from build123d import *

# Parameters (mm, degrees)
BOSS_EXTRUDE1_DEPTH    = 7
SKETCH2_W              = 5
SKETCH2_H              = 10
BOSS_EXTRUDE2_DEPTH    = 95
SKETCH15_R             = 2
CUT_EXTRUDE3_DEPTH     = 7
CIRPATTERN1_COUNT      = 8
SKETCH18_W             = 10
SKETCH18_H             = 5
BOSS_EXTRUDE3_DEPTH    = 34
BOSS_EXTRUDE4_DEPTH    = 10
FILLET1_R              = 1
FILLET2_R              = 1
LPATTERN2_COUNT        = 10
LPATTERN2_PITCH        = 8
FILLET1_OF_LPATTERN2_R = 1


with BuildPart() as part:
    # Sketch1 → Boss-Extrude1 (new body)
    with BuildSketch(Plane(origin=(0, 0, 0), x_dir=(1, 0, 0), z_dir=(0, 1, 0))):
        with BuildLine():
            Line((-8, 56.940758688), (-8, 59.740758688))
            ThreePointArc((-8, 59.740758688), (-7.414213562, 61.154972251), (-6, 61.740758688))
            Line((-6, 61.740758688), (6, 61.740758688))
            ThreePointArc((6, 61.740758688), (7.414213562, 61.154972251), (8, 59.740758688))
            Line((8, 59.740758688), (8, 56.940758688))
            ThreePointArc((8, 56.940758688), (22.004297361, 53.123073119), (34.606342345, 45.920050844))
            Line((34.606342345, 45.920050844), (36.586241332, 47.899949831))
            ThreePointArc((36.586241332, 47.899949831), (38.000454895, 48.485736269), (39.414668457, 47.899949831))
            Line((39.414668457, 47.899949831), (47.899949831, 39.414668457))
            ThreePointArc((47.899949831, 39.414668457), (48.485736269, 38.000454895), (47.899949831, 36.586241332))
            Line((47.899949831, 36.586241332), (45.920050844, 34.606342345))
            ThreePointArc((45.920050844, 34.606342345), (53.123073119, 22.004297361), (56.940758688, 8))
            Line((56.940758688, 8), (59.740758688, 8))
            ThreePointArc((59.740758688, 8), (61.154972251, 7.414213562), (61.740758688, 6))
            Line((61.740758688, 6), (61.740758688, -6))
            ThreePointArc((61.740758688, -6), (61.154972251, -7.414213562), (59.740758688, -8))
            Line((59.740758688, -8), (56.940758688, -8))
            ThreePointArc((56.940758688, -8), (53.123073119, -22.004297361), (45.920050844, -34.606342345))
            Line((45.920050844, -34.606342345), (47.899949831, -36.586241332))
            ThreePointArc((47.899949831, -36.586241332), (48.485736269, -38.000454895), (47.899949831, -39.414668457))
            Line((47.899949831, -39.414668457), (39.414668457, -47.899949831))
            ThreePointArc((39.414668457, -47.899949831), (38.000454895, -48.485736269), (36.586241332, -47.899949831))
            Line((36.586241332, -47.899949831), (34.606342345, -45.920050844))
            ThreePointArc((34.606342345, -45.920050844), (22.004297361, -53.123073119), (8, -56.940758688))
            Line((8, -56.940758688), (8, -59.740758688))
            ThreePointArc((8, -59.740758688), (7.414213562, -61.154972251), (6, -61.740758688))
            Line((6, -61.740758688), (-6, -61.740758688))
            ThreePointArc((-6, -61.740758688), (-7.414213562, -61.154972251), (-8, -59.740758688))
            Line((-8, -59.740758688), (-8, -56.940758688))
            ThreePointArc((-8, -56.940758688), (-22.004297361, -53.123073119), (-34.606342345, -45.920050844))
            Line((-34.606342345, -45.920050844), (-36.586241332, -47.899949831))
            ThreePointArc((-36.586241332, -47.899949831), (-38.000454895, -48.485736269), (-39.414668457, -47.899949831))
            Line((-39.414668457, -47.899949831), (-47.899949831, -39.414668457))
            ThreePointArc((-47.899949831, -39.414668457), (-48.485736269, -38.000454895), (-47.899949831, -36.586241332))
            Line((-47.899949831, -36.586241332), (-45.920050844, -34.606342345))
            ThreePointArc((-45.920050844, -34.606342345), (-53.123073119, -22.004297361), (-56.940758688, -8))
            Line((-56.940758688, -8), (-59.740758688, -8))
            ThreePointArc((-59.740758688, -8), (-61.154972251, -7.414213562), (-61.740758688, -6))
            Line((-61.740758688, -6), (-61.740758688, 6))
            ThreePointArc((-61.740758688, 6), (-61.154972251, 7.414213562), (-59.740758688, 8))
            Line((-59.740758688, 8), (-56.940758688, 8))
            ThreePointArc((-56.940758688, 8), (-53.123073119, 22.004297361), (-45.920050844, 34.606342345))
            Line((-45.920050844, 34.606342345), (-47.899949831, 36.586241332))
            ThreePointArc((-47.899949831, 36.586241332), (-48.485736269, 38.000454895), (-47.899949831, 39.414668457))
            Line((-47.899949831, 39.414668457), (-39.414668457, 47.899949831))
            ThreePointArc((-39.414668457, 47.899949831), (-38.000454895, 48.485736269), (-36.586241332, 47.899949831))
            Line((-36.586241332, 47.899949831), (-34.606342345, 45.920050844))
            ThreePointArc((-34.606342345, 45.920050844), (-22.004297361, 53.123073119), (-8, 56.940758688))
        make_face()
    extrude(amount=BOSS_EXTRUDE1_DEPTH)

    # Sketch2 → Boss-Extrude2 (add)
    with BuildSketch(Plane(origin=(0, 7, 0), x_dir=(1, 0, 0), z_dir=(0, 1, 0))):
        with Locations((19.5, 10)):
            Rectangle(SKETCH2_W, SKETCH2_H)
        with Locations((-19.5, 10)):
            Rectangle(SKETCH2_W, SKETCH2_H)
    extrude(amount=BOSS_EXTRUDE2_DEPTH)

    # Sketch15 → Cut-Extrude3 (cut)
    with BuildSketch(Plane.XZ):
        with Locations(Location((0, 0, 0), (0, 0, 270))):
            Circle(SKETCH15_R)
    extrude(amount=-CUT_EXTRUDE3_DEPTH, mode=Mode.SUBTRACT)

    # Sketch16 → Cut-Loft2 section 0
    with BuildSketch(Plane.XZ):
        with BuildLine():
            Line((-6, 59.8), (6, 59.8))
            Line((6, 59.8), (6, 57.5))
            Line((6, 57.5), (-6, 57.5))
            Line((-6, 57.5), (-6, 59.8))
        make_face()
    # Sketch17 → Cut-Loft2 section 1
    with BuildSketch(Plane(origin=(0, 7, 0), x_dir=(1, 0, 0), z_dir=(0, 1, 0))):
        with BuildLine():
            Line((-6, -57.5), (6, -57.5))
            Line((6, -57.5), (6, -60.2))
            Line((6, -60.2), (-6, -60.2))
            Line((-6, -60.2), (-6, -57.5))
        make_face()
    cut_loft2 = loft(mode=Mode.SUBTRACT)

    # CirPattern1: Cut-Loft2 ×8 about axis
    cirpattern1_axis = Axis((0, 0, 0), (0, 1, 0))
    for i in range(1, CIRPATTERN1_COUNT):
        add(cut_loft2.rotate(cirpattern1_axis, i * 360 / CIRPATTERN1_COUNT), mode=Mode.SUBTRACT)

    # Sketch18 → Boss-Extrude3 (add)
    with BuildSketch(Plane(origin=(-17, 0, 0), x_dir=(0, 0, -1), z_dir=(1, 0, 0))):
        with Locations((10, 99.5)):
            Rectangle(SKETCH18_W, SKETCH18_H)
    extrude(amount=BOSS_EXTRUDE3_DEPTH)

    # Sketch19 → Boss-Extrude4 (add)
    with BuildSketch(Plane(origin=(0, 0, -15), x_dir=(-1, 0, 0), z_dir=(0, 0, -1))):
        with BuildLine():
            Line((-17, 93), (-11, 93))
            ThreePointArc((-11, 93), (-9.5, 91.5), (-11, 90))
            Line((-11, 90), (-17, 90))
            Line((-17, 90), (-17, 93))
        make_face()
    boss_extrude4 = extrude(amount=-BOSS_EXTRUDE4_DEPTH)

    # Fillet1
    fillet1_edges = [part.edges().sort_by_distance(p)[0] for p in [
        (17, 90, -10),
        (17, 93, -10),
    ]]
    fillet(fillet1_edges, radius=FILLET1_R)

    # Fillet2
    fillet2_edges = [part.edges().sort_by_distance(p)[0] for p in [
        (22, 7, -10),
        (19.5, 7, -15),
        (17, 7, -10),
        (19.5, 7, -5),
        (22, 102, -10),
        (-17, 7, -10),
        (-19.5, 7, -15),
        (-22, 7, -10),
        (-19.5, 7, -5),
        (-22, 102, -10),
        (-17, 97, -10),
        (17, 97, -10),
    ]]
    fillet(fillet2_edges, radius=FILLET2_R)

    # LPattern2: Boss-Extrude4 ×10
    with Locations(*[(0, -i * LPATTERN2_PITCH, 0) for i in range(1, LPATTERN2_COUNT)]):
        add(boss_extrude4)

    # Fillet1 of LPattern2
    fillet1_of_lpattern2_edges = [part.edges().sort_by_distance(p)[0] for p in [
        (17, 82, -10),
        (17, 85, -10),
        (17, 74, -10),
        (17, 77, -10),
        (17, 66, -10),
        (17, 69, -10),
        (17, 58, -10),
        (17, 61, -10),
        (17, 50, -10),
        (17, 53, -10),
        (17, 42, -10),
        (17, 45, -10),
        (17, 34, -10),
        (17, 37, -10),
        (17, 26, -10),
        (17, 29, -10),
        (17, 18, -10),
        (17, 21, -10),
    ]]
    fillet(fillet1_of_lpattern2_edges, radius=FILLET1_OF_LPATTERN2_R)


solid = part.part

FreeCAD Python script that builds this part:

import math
import FreeCAD as App
import Part
import Sketcher

V = App.Vector
Q = App.Units.Quantity


def edges_at(feature, points):
    """Names of the edges that pass closest to the given points."""
    edges = feature.Shape.Edges
    near = lambda p: min(range(len(edges)), key=lambda i: edges[i].distToShape(Part.Vertex(*p))[0])
    return sorted({f"Edge{near(p) + 1}" for p in points})

doc = App.newDocument("Part")
body = doc.addObject("PartDesign::Body", "Body")

# Sketch on XZ plane
sketch1 = body.newObject("Sketcher::SketchObject", "Sketch")
sketch1.AttachmentSupport = (doc.getObject("XZ_Plane"), [""])
sketch1.MapMode = "FlatFace"
sketch1.addGeometry([
    Part.LineSegment(V(-8, -59.7, 0), V(-8, -56.9, 0)),  # 0
    Part.ArcOfCircle(Part.Circle(V(0, 0, 0), V(0, 0, 1), 57.5), math.radians(-127), math.radians(-98)),  # 1
    Part.LineSegment(V(-34.6, -45.9, 0), V(-36.6, -47.9, 0)),  # 2
    Part.ArcOfCircle(Part.Circle(V(-38, -46.5, 0), V(0, 0, 1), 2), math.radians(-135), math.radians(-45)),  # 3
    Part.LineSegment(V(-39.4, -47.9, 0), V(-47.9, -39.4, 0)),  # 4
    Part.ArcOfCircle(Part.Circle(V(-46.5, -38, 0), V(0, 0, 1), 2), math.radians(135), math.radians(225)),  # 5
    Part.LineSegment(V(-47.9, -36.6, 0), V(-45.9, -34.6, 0)),  # 6
    Part.ArcOfCircle(Part.Circle(V(0, 0, 0), V(0, 0, 1), 57.5), math.radians(-172), math.radians(-143)),  # 7
    Part.LineSegment(V(-56.9, -8, 0), V(-59.7, -8, 0)),  # 8
    Part.ArcOfCircle(Part.Circle(V(-59.7, -6, 0), V(0, 0, 1), 2), math.radians(180), math.radians(270)),  # 9
    Part.LineSegment(V(-61.7, -6, 0), V(-61.7, 6, 0)),  # 10
    Part.ArcOfCircle(Part.Circle(V(-59.7, 6, 0), V(0, 0, 1), 2), math.radians(90), math.radians(180)),  # 11
    Part.LineSegment(V(-59.7, 8, 0), V(-56.9, 8, 0)),  # 12
    Part.ArcOfCircle(Part.Circle(V(0, 0, 0), V(0, 0, 1), 57.5), math.radians(143), math.radians(172)),  # 13
    Part.LineSegment(V(-45.9, 34.6, 0), V(-47.9, 36.6, 0)),  # 14
    Part.ArcOfCircle(Part.Circle(V(-46.5, 38, 0), V(0, 0, 1), 2), math.radians(135), math.radians(225)),  # 15
    Part.LineSegment(V(-47.9, 39.4, 0), V(-39.4, 47.9, 0)),  # 16
    Part.ArcOfCircle(Part.Circle(V(-38, 46.5, 0), V(0, 0, 1), 2), math.radians(45), math.radians(135)),  # 17
    Part.LineSegment(V(-36.6, 47.9, 0), V(-34.6, 45.9, 0)),  # 18
    Part.ArcOfCircle(Part.Circle(V(0, 0, 0), V(0, 0, 1), 57.5), math.radians(98), math.radians(127)),  # 19
    Part.LineSegment(V(-8, 56.9, 0), V(-8, 59.7, 0)),  # 20
    Part.ArcOfCircle(Part.Circle(V(-6, 59.7, 0), V(0, 0, 1), 2), math.radians(90), math.radians(180)),  # 21
    Part.LineSegment(V(-6, 61.7, 0), V(6, 61.7, 0)),  # 22
    Part.ArcOfCircle(Part.Circle(V(6, 59.7, 0), V(0, 0, 1), 2), math.radians(0), math.radians(90)),  # 23
    Part.LineSegment(V(8, 59.7, 0), V(8, 56.9, 0)),  # 24
    Part.ArcOfCircle(Part.Circle(V(0, 0, 0), V(0, 0, 1), 57.5), math.radians(53), math.radians(82)),  # 25
    Part.LineSegment(V(34.6, 45.9, 0), V(36.6, 47.9, 0)),  # 26
    Part.ArcOfCircle(Part.Circle(V(38, 46.5, 0), V(0, 0, 1), 2), math.radians(45), math.radians(135)),  # 27
    Part.LineSegment(V(39.4, 47.9, 0), V(47.9, 39.4, 0)),  # 28
    Part.ArcOfCircle(Part.Circle(V(46.5, 38, 0), V(0, 0, 1), 2), math.radians(-45), math.radians(45)),  # 29
    Part.LineSegment(V(47.9, 36.6, 0), V(45.9, 34.6, 0)),  # 30
    Part.ArcOfCircle(Part.Circle(V(0, 0, 0), V(0, 0, 1), 57.5), math.radians(8), math.radians(37)),  # 31
    Part.LineSegment(V(56.9, 8, 0), V(59.7, 8, 0)),  # 32
    Part.ArcOfCircle(Part.Circle(V(59.7, 6, 0), V(0, 0, 1), 2), math.radians(0), math.radians(90)),  # 33
    Part.LineSegment(V(61.7, 6, 0), V(61.7, -6, 0)),  # 34
    Part.ArcOfCircle(Part.Circle(V(59.7, -6, 0), V(0, 0, 1), 2), math.radians(-90), math.radians(0)),  # 35
    Part.LineSegment(V(59.7, -8, 0), V(56.9, -8, 0)),  # 36
    Part.ArcOfCircle(Part.Circle(V(0, 0, 0), V(0, 0, 1), 57.5), math.radians(-37), math.radians(-8)),  # 37
    Part.LineSegment(V(45.9, -34.6, 0), V(47.9, -36.6, 0)),  # 38
    Part.ArcOfCircle(Part.Circle(V(46.5, -38, 0), V(0, 0, 1), 2), math.radians(-45), math.radians(45)),  # 39
    Part.LineSegment(V(47.9, -39.4, 0), V(39.4, -47.9, 0)),  # 40
    Part.ArcOfCircle(Part.Circle(V(38, -46.5, 0), V(0, 0, 1), 2), math.radians(-135), math.radians(-45)),  # 41
    Part.LineSegment(V(36.6, -47.9, 0), V(34.6, -45.9, 0)),  # 42
    Part.ArcOfCircle(Part.Circle(V(0, 0, 0), V(0, 0, 1), 57.5), math.radians(-82), math.radians(-53)),  # 43
    Part.LineSegment(V(8, -56.9, 0), V(8, -59.7, 0)),  # 44
    Part.ArcOfCircle(Part.Circle(V(6, -59.7, 0), V(0, 0, 1), 2), math.radians(-90), math.radians(0)),  # 45
    Part.LineSegment(V(6, -61.7, 0), V(-6, -61.7, 0)),  # 46
    Part.ArcOfCircle(Part.Circle(V(-6, -59.7, 0), V(0, 0, 1), 2), math.radians(180), math.radians(270)),  # 47
], False)
sketch1.addConstraint([
    Sketcher.Constraint("Coincident", 0, 2, 1, 2),
    Sketcher.Constraint("Coincident", 1, 1, 2, 1),
    Sketcher.Constraint("Tangent", 2, 2, 3, 2),
    Sketcher.Constraint("Tangent", 3, 1, 4, 1),
    Sketcher.Constraint("Tangent", 4, 2, 5, 2),
    Sketcher.Constraint("Tangent", 5, 1, 6, 1),
    Sketcher.Constraint("Coincident", 6, 2, 7, 2),
    Sketcher.Constraint("Coincident", 7, 1, 8, 1),
    Sketcher.Constraint("Tangent", 8, 2, 9, 2),
    Sketcher.Constraint("Tangent", 9, 1, 10, 1),
    Sketcher.Constraint("Tangent", 10, 2, 11, 2),
    Sketcher.Constraint("Tangent", 11, 1, 12, 1),
    Sketcher.Constraint("Coincident", 12, 2, 13, 2),
    Sketcher.Constraint("Coincident", 13, 1, 14, 1),
    Sketcher.Constraint("Tangent", 14, 2, 15, 2),
    Sketcher.Constraint("Tangent", 15, 1, 16, 1),
    Sketcher.Constraint("Tangent", 16, 2, 17, 2),
    Sketcher.Constraint("Tangent", 17, 1, 18, 1),
    Sketcher.Constraint("Coincident", 18, 2, 19, 2),
    Sketcher.Constraint("Coincident", 19, 1, 20, 1),
    Sketcher.Constraint("Tangent", 20, 2, 21, 2),
    Sketcher.Constraint("Tangent", 21, 1, 22, 1),
    Sketcher.Constraint("Tangent", 22, 2, 23, 2),
    Sketcher.Constraint("Tangent", 23, 1, 24, 1),
    Sketcher.Constraint("Coincident", 24, 2, 25, 2),
    Sketcher.Constraint("Coincident", 25, 1, 26, 1),
    Sketcher.Constraint("Tangent", 26, 2, 27, 2),
    Sketcher.Constraint("Tangent", 27, 1, 28, 1),
    Sketcher.Constraint("Tangent", 28, 2, 29, 2),
    Sketcher.Constraint("Tangent", 29, 1, 30, 1),
    Sketcher.Constraint("Coincident", 30, 2, 31, 2),
    Sketcher.Constraint("Coincident", 31, 1, 32, 1),
    Sketcher.Constraint("Tangent", 32, 2, 33, 2),
    Sketcher.Constraint("Tangent", 33, 1, 34, 1),
    Sketcher.Constraint("Tangent", 34, 2, 35, 2),
    Sketcher.Constraint("Tangent", 35, 1, 36, 1),
    Sketcher.Constraint("Coincident", 36, 2, 37, 2),
    Sketcher.Constraint("Coincident", 37, 1, 38, 1),
    Sketcher.Constraint("Tangent", 38, 2, 39, 2),
    Sketcher.Constraint("Tangent", 39, 1, 40, 1),
    Sketcher.Constraint("Tangent", 40, 2, 41, 2),
    Sketcher.Constraint("Tangent", 41, 1, 42, 1),
    Sketcher.Constraint("Coincident", 42, 2, 43, 2),
    Sketcher.Constraint("Coincident", 43, 1, 44, 1),
    Sketcher.Constraint("Tangent", 44, 2, 45, 2),
    Sketcher.Constraint("Tangent", 45, 1, 46, 1),
    Sketcher.Constraint("Tangent", 46, 2, 47, 2),
    Sketcher.Constraint("Tangent", 47, 1, 0, 1),
    Sketcher.Constraint("Vertical", 0),
    Sketcher.Constraint("Horizontal", 8),
    Sketcher.Constraint("Vertical", 10),
    Sketcher.Constraint("Horizontal", 12),
    Sketcher.Constraint("Vertical", 20),
    Sketcher.Constraint("Horizontal", 22),
    Sketcher.Constraint("Vertical", 24),
    Sketcher.Constraint("Horizontal", 32),
    Sketcher.Constraint("Vertical", 34),
    Sketcher.Constraint("Horizontal", 36),
    Sketcher.Constraint("Vertical", 44),
    Sketcher.Constraint("Horizontal", 46),
    Sketcher.Constraint("Coincident", 1, 3, -1, 1),
    Sketcher.Constraint("Coincident", 7, 3, -1, 1),
    Sketcher.Constraint("Coincident", 13, 3, -1, 1),
    Sketcher.Constraint("Coincident", 19, 3, -1, 1),
    Sketcher.Constraint("Coincident", 25, 3, -1, 1),
    Sketcher.Constraint("Coincident", 31, 3, -1, 1),
    Sketcher.Constraint("Coincident", 37, 3, -1, 1),
    Sketcher.Constraint("Coincident", 43, 3, -1, 1),
    Sketcher.Constraint("Equal", 3, 5),
    Sketcher.Constraint("Equal", 1, 7),
    Sketcher.Constraint("Equal", 5, 9),
    Sketcher.Constraint("Equal", 9, 11),
    Sketcher.Constraint("Equal", 7, 13),
    Sketcher.Constraint("Equal", 11, 15),
    Sketcher.Constraint("Equal", 15, 17),
    Sketcher.Constraint("Equal", 13, 19),
    Sketcher.Constraint("Equal", 17, 21),
    Sketcher.Constraint("Equal", 21, 23),
    Sketcher.Constraint("Equal", 19, 25),
    Sketcher.Constraint("Equal", 23, 27),
    Sketcher.Constraint("Equal", 27, 29),
    Sketcher.Constraint("Equal", 25, 31),
    Sketcher.Constraint("Equal", 29, 33),
    Sketcher.Constraint("Equal", 33, 35),
    Sketcher.Constraint("Equal", 31, 37),
    Sketcher.Constraint("Equal", 35, 39),
    Sketcher.Constraint("Equal", 39, 41),
    Sketcher.Constraint("Equal", 37, 43),
    Sketcher.Constraint("Equal", 41, 45),
    Sketcher.Constraint("Equal", 45, 47),
    Sketcher.Constraint("Symmetric", 3, 3, 27, 3, -1, 1),
    Sketcher.Constraint("Symmetric", 5, 3, 29, 3, -1, 1),
    Sketcher.Constraint("Symmetric", 9, 3, 33, 3, -1, 1),
    Sketcher.Constraint("Symmetric", 15, 3, 39, 3, -1, 1),
    Sketcher.Constraint("Symmetric", 17, 3, 41, 3, -1, 1),
    Sketcher.Constraint("Symmetric", 21, 3, 45, 3, -1, 1),
    Sketcher.Constraint("Symmetric", 17, 3, 27, 3, -2),
    Sketcher.Constraint("Symmetric", 15, 3, 29, 3, -2),
    Sketcher.Constraint("Perpendicular", 2, 4),
    Sketcher.Constraint("Perpendicular", 4, 6),
    Sketcher.Constraint("Perpendicular", 6, 14),
    Sketcher.Constraint("Perpendicular", 14, 16),
    Sketcher.Constraint("Perpendicular", 16, 18),
    Sketcher.Constraint("Perpendicular", 18, 26),
    Sketcher.Constraint("Perpendicular", 28, 30),
    Sketcher.Constraint("Perpendicular", 30, 38),
    Sketcher.Constraint("Perpendicular", 40, 42),
    Sketcher.Constraint("Horizontal", 11, 3, 33, 3),
    Sketcher.Constraint("Horizontal", 9, 3, 35, 3),
    Sketcher.Constraint("Horizontal", 19, 1, 24, 2),
    Sketcher.Constraint("Horizontal", 0, 2, 43, 1),
    Sketcher.Constraint("Equal", 36, 0),
    Sketcher.Constraint("Equal", 46, 10),
    Sketcher.Constraint("Equal", 2, 6),
    Sketcher.Constraint("Radius", 3, Q("2 mm")),
    Sketcher.Constraint("Radius", 1, Q("57.5 mm")),
    Sketcher.Constraint("DistanceX", 22, 1, 22, 2, Q("12 mm")),
    Sketcher.Constraint("Distance", 4, Q("12 mm")),
    Sketcher.Constraint("DistanceX", 8, 2, 8, 1, Q("2.8 mm")),
    Sketcher.Constraint("Distance", 2, Q("2.8 mm")),
])
pad1 = body.newObject("PartDesign::Pad", "Pad")
pad1.Profile = sketch1
pad1.Length = 7
pad1.Reversed = True

# Sketch on XZ plane
sketch2 = body.newObject("Sketcher::SketchObject", "Sketch001")
sketch2.AttachmentSupport = (doc.getObject("XZ_Plane"), [""])
sketch2.MapMode = "FlatFace"
sketch2.AttachmentOffset = App.Placement(V(0, 0, -7), App.Rotation())
sketch2.addGeometry([
    Part.LineSegment(V(17, -15, 0), V(17, -5, 0)),  # 0
    Part.LineSegment(V(17, -5, 0), V(22, -5, 0)),  # 1
    Part.LineSegment(V(22, -5, 0), V(22, -15, 0)),  # 2
    Part.LineSegment(V(22, -15, 0), V(17, -15, 0)),  # 3
    Part.LineSegment(V(-22, -15, 0), V(-22, -5, 0)),  # 4
    Part.LineSegment(V(-22, -5, 0), V(-17, -5, 0)),  # 5
    Part.LineSegment(V(-17, -5, 0), V(-17, -15, 0)),  # 6
    Part.LineSegment(V(-17, -15, 0), V(-22, -15, 0)),  # 7
], False)
sketch2.addConstraint([
    Sketcher.Constraint("Coincident", 0, 2, 1, 1),
    Sketcher.Constraint("Coincident", 1, 2, 2, 1),
    Sketcher.Constraint("Coincident", 2, 2, 3, 1),
    Sketcher.Constraint("Coincident", 3, 2, 0, 1),
    Sketcher.Constraint("Coincident", 4, 2, 5, 1),
    Sketcher.Constraint("Coincident", 5, 2, 6, 1),
    Sketcher.Constraint("Coincident", 6, 2, 7, 1),
    Sketcher.Constraint("Coincident", 7, 2, 4, 1),
    Sketcher.Constraint("Vertical", 0),
    Sketcher.Constraint("Horizontal", 1),
    Sketcher.Constraint("Vertical", 2),
    Sketcher.Constraint("Horizontal", 3),
    Sketcher.Constraint("Vertical", 4),
    Sketcher.Constraint("Horizontal", 5),
    Sketcher.Constraint("Vertical", 6),
    Sketcher.Constraint("Horizontal", 7),
    Sketcher.Constraint("Symmetric", 1, 2, 4, 2, -2),
    Sketcher.Constraint("Symmetric", 3, 2, 6, 2, -2),
    Sketcher.Constraint("DistanceX", 1, 1, 1, 2, Q("5 mm")),
    Sketcher.Constraint("DistanceY", 0, 1, 0, 2, Q("10 mm")),
    Sketcher.Constraint("DistanceX", -1, 1, 0, 2, Q("17 mm")),
    Sketcher.Constraint("DistanceY", 0, 2, -1, 1, Q("5 mm")),
])
pad2 = body.newObject("PartDesign::Pad", "Pad001")
pad2.Profile = sketch2
pad2.Length = 95
pad2.Reversed = True

# Sketch on XZ plane
sketch3 = body.newObject("Sketcher::SketchObject", "Sketch002")
sketch3.AttachmentSupport = (doc.getObject("XZ_Plane"), [""])
sketch3.MapMode = "FlatFace"
sketch3.addGeometry(Part.Circle(V(0, 0, 0), V(0, 0, 1), 2), False)
sketch3.addConstraint([
    Sketcher.Constraint("Coincident", 0, 3, -1, 1),
    Sketcher.Constraint("Diameter", 0, Q("4 mm")),
])
pocket1 = body.newObject("PartDesign::Pocket", "Pocket")
pocket1.Profile = sketch3
pocket1.Length = 7

# Sketch on XZ plane
sketch4 = body.newObject("Sketcher::SketchObject", "Sketch003")
sketch4.AttachmentSupport = (doc.getObject("XZ_Plane"), [""])
sketch4.MapMode = "FlatFace"
sketch4.addGeometry([
    Part.LineSegment(V(6, 59.8, 0), V(-6, 59.8, 0)),
    Part.LineSegment(V(-6, 59.8, 0), V(-6, 57.5, 0)),
    Part.LineSegment(V(-6, 57.5, 0), V(6, 57.5, 0)),
    Part.LineSegment(V(6, 57.5, 0), V(6, 59.8, 0)),
], False)
sketch4.addConstraint([
    Sketcher.Constraint("Coincident", 0, 2, 1, 1),
    Sketcher.Constraint("Coincident", 1, 2, 2, 1),
    Sketcher.Constraint("Coincident", 2, 2, 3, 1),
    Sketcher.Constraint("Coincident", 3, 2, 0, 1),
    Sketcher.Constraint("Horizontal", 0),
    Sketcher.Constraint("Vertical", 1),
    Sketcher.Constraint("Horizontal", 2),
    Sketcher.Constraint("Vertical", 3),
    Sketcher.Constraint("DistanceX", 0, 2, 0, 1, Q("12 mm")),
    Sketcher.Constraint("DistanceY", 1, 2, 1, 1, Q("2.3 mm")),
    Sketcher.Constraint("DistanceX", 0, 2, -1, 1, Q("6 mm")),
    Sketcher.Constraint("DistanceY", -1, 1, 0, 2, Q("59.8 mm")),
])

# Sketch on XZ plane
sketch5 = body.newObject("Sketcher::SketchObject", "Sketch004")
sketch5.AttachmentSupport = (doc.getObject("XZ_Plane"), [""])
sketch5.MapMode = "FlatFace"
sketch5.AttachmentOffset = App.Placement(V(0, 0, -7), App.Rotation())
sketch5.addGeometry([
    Part.LineSegment(V(6, 57.5, 0), V(-6, 57.5, 0)),
    Part.LineSegment(V(-6, 57.5, 0), V(-6, 60.2, 0)),
    Part.LineSegment(V(-6, 60.2, 0), V(6, 60.2, 0)),
    Part.LineSegment(V(6, 60.2, 0), V(6, 57.5, 0)),
], False)
sketch5.addConstraint([
    Sketcher.Constraint("Coincident", 0, 2, 1, 1),
    Sketcher.Constraint("Coincident", 1, 2, 2, 1),
    Sketcher.Constraint("Coincident", 2, 2, 3, 1),
    Sketcher.Constraint("Coincident", 3, 2, 0, 1),
    Sketcher.Constraint("Horizontal", 0),
    Sketcher.Constraint("Vertical", 1),
    Sketcher.Constraint("Horizontal", 2),
    Sketcher.Constraint("Vertical", 3),
    Sketcher.Constraint("DistanceX", 0, 2, 0, 1, Q("12 mm")),
    Sketcher.Constraint("DistanceY", 1, 1, 1, 2, Q("2.7 mm")),
    Sketcher.Constraint("DistanceX", 0, 2, -1, 1, Q("6 mm")),
    Sketcher.Constraint("DistanceY", -1, 1, 0, 2, Q("57.5 mm")),
])

subtractiveloft = body.newObject("PartDesign::SubtractiveLoft", "SubtractiveLoft")
subtractiveloft.Profile = sketch4
subtractiveloft.Sections = [sketch5]
doc.recompute()

polarpattern = body.newObject("PartDesign::PolarPattern", "PolarPattern")
polarpattern.Originals = [subtractiveloft]
polarpattern.Axis = (doc.getObject("Y_Axis"), [""])
polarpattern.Angle = 360
polarpattern.Occurrences = 8
body.Tip = polarpattern

# Sketch on YZ plane
sketch6 = body.newObject("Sketcher::SketchObject", "Sketch005")
sketch6.AttachmentSupport = (doc.getObject("YZ_Plane"), [""])
sketch6.MapMode = "FlatFace"
sketch6.AttachmentOffset = App.Placement(V(0, 0, -17), App.Rotation())
sketch6.addGeometry([
    Part.LineSegment(V(102, -5, 0), V(97, -5, 0)),
    Part.LineSegment(V(97, -5, 0), V(97, -15, 0)),
    Part.LineSegment(V(97, -15, 0), V(102, -15, 0)),
    Part.LineSegment(V(102, -15, 0), V(102, -5, 0)),
], False)
sketch6.addConstraint([
    Sketcher.Constraint("Coincident", 0, 2, 1, 1),
    Sketcher.Constraint("Coincident", 1, 2, 2, 1),
    Sketcher.Constraint("Coincident", 2, 2, 3, 1),
    Sketcher.Constraint("Coincident", 3, 2, 0, 1),
    Sketcher.Constraint("Horizontal", 0),
    Sketcher.Constraint("Vertical", 1),
    Sketcher.Constraint("Horizontal", 2),
    Sketcher.Constraint("Vertical", 3),
    Sketcher.Constraint("DistanceX", 0, 2, 0, 1, Q("5 mm")),
    Sketcher.Constraint("DistanceY", 1, 2, 1, 1, Q("10 mm")),
    Sketcher.Constraint("DistanceX", -1, 1, 0, 2, Q("97 mm")),
    Sketcher.Constraint("DistanceY", 0, 2, -1, 1, Q("5 mm")),
])
pad3 = body.newObject("PartDesign::Pad", "Pad002")
pad3.Profile = sketch6
pad3.Length = 34

# Sketch on XY plane
sketch7 = body.newObject("Sketcher::SketchObject", "Sketch006")
sketch7.AttachmentSupport = (doc.getObject("XY_Plane"), [""])
sketch7.MapMode = "FlatFace"
sketch7.AttachmentOffset = App.Placement(V(0, 0, -15), App.Rotation())
sketch7.addGeometry([
    Part.LineSegment(V(11, 93, 0), V(17, 93, 0)),
    Part.LineSegment(V(17, 93, 0), V(17, 90, 0)),
    Part.LineSegment(V(17, 90, 0), V(11, 90, 0)),
    Part.ArcOfCircle(Part.Circle(V(11, 91.5, 0), V(0, 0, 1), 1.5), math.radians(90), math.radians(270)),
], False)
sketch7.addConstraint([
    Sketcher.Constraint("Coincident", 0, 2, 1, 1),
    Sketcher.Constraint("Coincident", 1, 2, 2, 1),
    Sketcher.Constraint("Tangent", 2, 2, 3, 2),
    Sketcher.Constraint("Tangent", 3, 1, 0, 1),
    Sketcher.Constraint("Horizontal", 0),
    Sketcher.Constraint("Vertical", 1),
    Sketcher.Constraint("Horizontal", 2),
    Sketcher.Constraint("Radius", 3, Q("1.5 mm")),
    Sketcher.Constraint("DistanceX", 0, 1, 0, 2, Q("6 mm")),
    Sketcher.Constraint("DistanceX", -1, 1, 3, 3, Q("11 mm")),
    Sketcher.Constraint("DistanceY", -1, 1, 0, 2, Q("93 mm")),
])
pad4 = body.newObject("PartDesign::Pad", "Pad003")
pad4.Profile = sketch7
pad4.Length = 10
doc.recompute()

fillet = body.newObject("PartDesign::Fillet", "Fillet")
fillet.Base = (pad4, edges_at(pad4, [(17, 90, -10), (17, 93, -10)]))
fillet.Radius = 1
doc.recompute()

fillet2 = body.newObject("PartDesign::Fillet", "Fillet001")
fillet2.Base = (fillet, edges_at(fillet, [
    (22, 7, -10),
    (19.5, 7, -15),
    (17, 7, -10),
    (19.5, 7, -5),
    (22, 102, -10),
    (-17, 7, -10),
    (-19.5, 7, -15),
    (-22, 7, -10),
    (-19.5, 7, -5),
    (-22, 102, -10),
    (-17, 97, -10),
    (17, 97, -10),
]))
fillet2.Radius = 1
doc.recompute()

linearpattern = body.newObject("PartDesign::LinearPattern", "LinearPattern")
linearpattern.Originals = [pad4]
linearpattern.Direction = (doc.getObject("Y_Axis"), [""])
linearpattern.Mode = "offset"
linearpattern.Offset = 8
linearpattern.Occurrences = 10
linearpattern.Reversed = True
body.Tip = linearpattern
doc.recompute()

fillet3 = body.newObject("PartDesign::Fillet", "Fillet002")
fillet3.Base = (linearpattern, edges_at(linearpattern, [
    (17, 82, -10),
    (17, 85, -10),
    (17, 74, -10),
    (17, 77, -10),
    (17, 66, -10),
    (17, 69, -10),
    (17, 58, -10),
    (17, 61, -10),
    (17, 50, -10),
    (17, 53, -10),
    (17, 42, -10),
    (17, 45, -10),
    (17, 34, -10),
    (17, 37, -10),
    (17, 26, -10),
    (17, 29, -10),
    (17, 18, -10),
    (17, 21, -10),
]))
fillet3.Radius = 1

doc.recompute()
